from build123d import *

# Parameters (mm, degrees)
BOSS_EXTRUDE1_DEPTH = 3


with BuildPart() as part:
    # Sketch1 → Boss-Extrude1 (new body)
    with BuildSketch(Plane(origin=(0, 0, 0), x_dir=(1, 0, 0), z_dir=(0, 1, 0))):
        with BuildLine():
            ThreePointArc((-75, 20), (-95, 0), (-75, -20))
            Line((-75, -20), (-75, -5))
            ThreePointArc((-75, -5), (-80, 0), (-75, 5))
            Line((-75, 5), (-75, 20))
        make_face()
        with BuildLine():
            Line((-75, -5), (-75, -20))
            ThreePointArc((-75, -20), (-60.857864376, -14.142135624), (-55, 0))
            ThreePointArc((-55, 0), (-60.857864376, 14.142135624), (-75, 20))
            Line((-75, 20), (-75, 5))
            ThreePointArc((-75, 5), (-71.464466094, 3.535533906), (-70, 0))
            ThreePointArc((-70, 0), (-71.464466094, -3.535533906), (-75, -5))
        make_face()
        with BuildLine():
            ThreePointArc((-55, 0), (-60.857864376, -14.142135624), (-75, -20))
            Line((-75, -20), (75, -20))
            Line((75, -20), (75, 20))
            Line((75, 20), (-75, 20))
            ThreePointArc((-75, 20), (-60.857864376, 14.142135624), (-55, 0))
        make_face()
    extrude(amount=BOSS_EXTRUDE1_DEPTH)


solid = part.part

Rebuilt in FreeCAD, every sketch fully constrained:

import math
import FreeCAD as App
import Part
import Sketcher
from FreeCAD import Vector
Q = App.Units.Quantity

doc = App.newDocument("Part")
body = doc.addObject("PartDesign::Body", "Body")

sketch1 = doc.addObject("Sketcher::SketchObject", "Sketch")
body.addObject(sketch1)
sketch1.AttachmentSupport = (doc.XZ_Plane, [""])
sketch1.MapMode = "FlatFace"
sketch1.addGeometry([
    Part.ArcOfCircle(Part.Circle(Vector(-75, 0, 0), Vector(0, 0, 1), 20), math.radians(90), math.radians(270)),
    Part.LineSegment(Vector(-75, 20, 0), Vector(75, 20, 0)),
    Part.LineSegment(Vector(75, 20, 0), Vector(75, -20, 0)),
    Part.LineSegment(Vector(75, -20, 0), Vector(-75, -20, 0)),
    Part.ArcOfCircle(Part.Circle(Vector(-75, 0, 0), Vector(0, 0, 1), 5), math.radians(90), math.radians(270)),
    Part.ArcOfCircle(Part.Circle(Vector(-75, 0, 0), Vector(0, 0, 1), 5), math.radians(-90), math.radians(0)),
    Part.ArcOfCircle(Part.Circle(Vector(-75, 0, 0), Vector(0, 0, 1), 5), math.radians(0), math.radians(90)),
], False)
sketch1.addConstraint([
    Sketcher.Constraint("Tangent", 0, 1, 1, 1),
    Sketcher.Constraint("Coincident", 1, 2, 2, 1),
    Sketcher.Constraint("Coincident", 2, 2, 3, 1),
    Sketcher.Constraint("Tangent", 3, 2, 0, 2),
    Sketcher.Constraint("Tangent", 4, 2, 5, 1),
    Sketcher.Constraint("Tangent", 5, 2, 6, 1),
    Sketcher.Constraint("Tangent", 6, 2, 4, 1),
    Sketcher.Constraint("Horizontal", 1),
    Sketcher.Constraint("Vertical", 2),
    Sketcher.Constraint("Horizontal", 3),
    Sketcher.Constraint("Coincident", 4, 3, 0, 3),
    Sketcher.Constraint("Symmetric", 0, 1, 2, 2, -1, 1),
    Sketcher.Constraint("PointOnObject", 5, 2, -1),
    Sketcher.Constraint("Vertical", 3, 2, 4, 2),
    Sketcher.Constraint("Vertical", 4, 2, 6, 2),
    Sketcher.Constraint("Radius", 0, Q("20 mm")),
    Sketcher.Constraint("Radius", 4, Q("5 mm")),
    Sketcher.Constraint("DistanceX", 1, 1, 1, 2, Q("150 mm")),
])
pad1 = doc.addObject("PartDesign::Pad", "Pad")
body.addObject(pad1)
pad1.Profile = sketch1
pad1.Length = 3
pad1.Reversed = True

doc.recompute()
